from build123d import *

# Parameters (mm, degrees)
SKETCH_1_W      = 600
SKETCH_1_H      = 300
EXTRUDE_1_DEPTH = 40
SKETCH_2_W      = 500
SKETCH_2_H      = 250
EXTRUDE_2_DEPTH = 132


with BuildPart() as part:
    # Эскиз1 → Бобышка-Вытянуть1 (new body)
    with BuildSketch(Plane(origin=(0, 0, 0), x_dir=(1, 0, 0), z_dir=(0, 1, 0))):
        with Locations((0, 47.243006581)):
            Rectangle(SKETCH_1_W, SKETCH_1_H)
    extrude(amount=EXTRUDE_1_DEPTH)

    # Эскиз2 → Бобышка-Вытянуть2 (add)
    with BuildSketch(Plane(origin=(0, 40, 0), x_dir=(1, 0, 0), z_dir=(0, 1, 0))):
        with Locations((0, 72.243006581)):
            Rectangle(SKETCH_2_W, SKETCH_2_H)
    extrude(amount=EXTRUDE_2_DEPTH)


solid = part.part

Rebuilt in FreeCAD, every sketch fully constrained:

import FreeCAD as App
import Part
import Sketcher
Q = App.Units.Quantity

doc = App.newDocument("Part")
body = doc.addObject("PartDesign::Body", "Body")

# Sketch on XZ plane
sketch1 = body.newObject("Sketcher::SketchObject", "Sketch")
sketch1.AttachmentSupport = (doc.getObject("XZ_Plane"), [""])
sketch1.MapMode = "FlatFace"
sketch1.addGeometry([
    Part.LineSegment(App.Vector(-300, -197, 0), App.Vector(-300, 103, 0)),
    Part.LineSegment(App.Vector(-300, 103, 0), App.Vector(300, 103, 0)),
    Part.LineSegment(App.Vector(300, 103, 0), App.Vector(300, -197, 0)),
    Part.LineSegment(App.Vector(300, -197, 0), App.Vector(-300, -197, 0)),
], False)
sketch1.addConstraint([
    Sketcher.Constraint("Coincident", 0, 2, 1, 1),
    Sketcher.Constraint("Coincident", 1, 2, 2, 1),
    Sketcher.Constraint("Coincident", 2, 2, 3, 1),
    Sketcher.Constraint("Coincident", 3, 2, 0, 1),
    Sketcher.Constraint("Vertical", 0),
    Sketcher.Constraint("Horizontal", 1),
    Sketcher.Constraint("Vertical", 2),
    Sketcher.Constraint("Horizontal", 3),
    Sketcher.Constraint("DistanceX", 1, 1, 1, 2, Q("600 mm")),
    Sketcher.Constraint("DistanceY", 0, 1, 0, 2, Q("300 mm")),
    Sketcher.Constraint("DistanceX", 0, 2, -1, 1, Q("300 mm")),
    Sketcher.Constraint("DistanceY", -1, 1, 0, 2, Q("102.756993 mm")),
])
pad1 = body.newObject("PartDesign::Pad", "Pad")
pad1.Profile = sketch1
pad1.Length = 40
pad1.Reversed = True

# Sketch on XZ plane
sketch2 = body.newObject("Sketcher::SketchObject", "Sketch001")
sketch2.AttachmentSupport = (doc.getObject("XZ_Plane"), [""])
sketch2.MapMode = "FlatFace"
sketch2.AttachmentOffset = App.Placement(App.Vector(0, 0, -40), App.Rotation())
sketch2.addGeometry([
    Part.LineSegment(App.Vector(-250, -197, 0), App.Vector(-250, 53, 0)),
    Part.LineSegment(App.Vector(-250, 53, 0), App.Vector(250, 53, 0)),
    Part.LineSegment(App.Vector(250, 53, 0), App.Vector(250, -197, 0)),
    Part.LineSegment(App.Vector(250, -197, 0), App.Vector(-250, -197, 0)),
], False)
sketch2.addConstraint([
    Sketcher.Constraint("Coincident", 0, 2, 1, 1),
    Sketcher.Constraint("Coincident", 1, 2, 2, 1),
    Sketcher.Constraint("Coincident", 2, 2, 3, 1),
    Sketcher.Constraint("Coincident", 3, 2, 0, 1),
    Sketcher.Constraint("Vertical", 0),
    Sketcher.Constraint("Horizontal", 1),
    Sketcher.Constraint("Vertical", 2),
    Sketcher.Constraint("Horizontal", 3),
    Sketcher.Constraint("DistanceX", 1, 1, 1, 2, Q("500 mm")),
    Sketcher.Constraint("DistanceY", 0, 1, 0, 2, Q("250 mm")),
    Sketcher.Constraint("DistanceX", 0, 2, -1, 1, Q("250 mm")),
    Sketcher.Constraint("DistanceY", -1, 1, 0, 2, Q("52.756993 mm")),
])
pad2 = body.newObject("PartDesign::Pad", "Pad001")
pad2.Profile = sketch2
pad2.Length = 132
pad2.Reversed = True

doc.recompute()
